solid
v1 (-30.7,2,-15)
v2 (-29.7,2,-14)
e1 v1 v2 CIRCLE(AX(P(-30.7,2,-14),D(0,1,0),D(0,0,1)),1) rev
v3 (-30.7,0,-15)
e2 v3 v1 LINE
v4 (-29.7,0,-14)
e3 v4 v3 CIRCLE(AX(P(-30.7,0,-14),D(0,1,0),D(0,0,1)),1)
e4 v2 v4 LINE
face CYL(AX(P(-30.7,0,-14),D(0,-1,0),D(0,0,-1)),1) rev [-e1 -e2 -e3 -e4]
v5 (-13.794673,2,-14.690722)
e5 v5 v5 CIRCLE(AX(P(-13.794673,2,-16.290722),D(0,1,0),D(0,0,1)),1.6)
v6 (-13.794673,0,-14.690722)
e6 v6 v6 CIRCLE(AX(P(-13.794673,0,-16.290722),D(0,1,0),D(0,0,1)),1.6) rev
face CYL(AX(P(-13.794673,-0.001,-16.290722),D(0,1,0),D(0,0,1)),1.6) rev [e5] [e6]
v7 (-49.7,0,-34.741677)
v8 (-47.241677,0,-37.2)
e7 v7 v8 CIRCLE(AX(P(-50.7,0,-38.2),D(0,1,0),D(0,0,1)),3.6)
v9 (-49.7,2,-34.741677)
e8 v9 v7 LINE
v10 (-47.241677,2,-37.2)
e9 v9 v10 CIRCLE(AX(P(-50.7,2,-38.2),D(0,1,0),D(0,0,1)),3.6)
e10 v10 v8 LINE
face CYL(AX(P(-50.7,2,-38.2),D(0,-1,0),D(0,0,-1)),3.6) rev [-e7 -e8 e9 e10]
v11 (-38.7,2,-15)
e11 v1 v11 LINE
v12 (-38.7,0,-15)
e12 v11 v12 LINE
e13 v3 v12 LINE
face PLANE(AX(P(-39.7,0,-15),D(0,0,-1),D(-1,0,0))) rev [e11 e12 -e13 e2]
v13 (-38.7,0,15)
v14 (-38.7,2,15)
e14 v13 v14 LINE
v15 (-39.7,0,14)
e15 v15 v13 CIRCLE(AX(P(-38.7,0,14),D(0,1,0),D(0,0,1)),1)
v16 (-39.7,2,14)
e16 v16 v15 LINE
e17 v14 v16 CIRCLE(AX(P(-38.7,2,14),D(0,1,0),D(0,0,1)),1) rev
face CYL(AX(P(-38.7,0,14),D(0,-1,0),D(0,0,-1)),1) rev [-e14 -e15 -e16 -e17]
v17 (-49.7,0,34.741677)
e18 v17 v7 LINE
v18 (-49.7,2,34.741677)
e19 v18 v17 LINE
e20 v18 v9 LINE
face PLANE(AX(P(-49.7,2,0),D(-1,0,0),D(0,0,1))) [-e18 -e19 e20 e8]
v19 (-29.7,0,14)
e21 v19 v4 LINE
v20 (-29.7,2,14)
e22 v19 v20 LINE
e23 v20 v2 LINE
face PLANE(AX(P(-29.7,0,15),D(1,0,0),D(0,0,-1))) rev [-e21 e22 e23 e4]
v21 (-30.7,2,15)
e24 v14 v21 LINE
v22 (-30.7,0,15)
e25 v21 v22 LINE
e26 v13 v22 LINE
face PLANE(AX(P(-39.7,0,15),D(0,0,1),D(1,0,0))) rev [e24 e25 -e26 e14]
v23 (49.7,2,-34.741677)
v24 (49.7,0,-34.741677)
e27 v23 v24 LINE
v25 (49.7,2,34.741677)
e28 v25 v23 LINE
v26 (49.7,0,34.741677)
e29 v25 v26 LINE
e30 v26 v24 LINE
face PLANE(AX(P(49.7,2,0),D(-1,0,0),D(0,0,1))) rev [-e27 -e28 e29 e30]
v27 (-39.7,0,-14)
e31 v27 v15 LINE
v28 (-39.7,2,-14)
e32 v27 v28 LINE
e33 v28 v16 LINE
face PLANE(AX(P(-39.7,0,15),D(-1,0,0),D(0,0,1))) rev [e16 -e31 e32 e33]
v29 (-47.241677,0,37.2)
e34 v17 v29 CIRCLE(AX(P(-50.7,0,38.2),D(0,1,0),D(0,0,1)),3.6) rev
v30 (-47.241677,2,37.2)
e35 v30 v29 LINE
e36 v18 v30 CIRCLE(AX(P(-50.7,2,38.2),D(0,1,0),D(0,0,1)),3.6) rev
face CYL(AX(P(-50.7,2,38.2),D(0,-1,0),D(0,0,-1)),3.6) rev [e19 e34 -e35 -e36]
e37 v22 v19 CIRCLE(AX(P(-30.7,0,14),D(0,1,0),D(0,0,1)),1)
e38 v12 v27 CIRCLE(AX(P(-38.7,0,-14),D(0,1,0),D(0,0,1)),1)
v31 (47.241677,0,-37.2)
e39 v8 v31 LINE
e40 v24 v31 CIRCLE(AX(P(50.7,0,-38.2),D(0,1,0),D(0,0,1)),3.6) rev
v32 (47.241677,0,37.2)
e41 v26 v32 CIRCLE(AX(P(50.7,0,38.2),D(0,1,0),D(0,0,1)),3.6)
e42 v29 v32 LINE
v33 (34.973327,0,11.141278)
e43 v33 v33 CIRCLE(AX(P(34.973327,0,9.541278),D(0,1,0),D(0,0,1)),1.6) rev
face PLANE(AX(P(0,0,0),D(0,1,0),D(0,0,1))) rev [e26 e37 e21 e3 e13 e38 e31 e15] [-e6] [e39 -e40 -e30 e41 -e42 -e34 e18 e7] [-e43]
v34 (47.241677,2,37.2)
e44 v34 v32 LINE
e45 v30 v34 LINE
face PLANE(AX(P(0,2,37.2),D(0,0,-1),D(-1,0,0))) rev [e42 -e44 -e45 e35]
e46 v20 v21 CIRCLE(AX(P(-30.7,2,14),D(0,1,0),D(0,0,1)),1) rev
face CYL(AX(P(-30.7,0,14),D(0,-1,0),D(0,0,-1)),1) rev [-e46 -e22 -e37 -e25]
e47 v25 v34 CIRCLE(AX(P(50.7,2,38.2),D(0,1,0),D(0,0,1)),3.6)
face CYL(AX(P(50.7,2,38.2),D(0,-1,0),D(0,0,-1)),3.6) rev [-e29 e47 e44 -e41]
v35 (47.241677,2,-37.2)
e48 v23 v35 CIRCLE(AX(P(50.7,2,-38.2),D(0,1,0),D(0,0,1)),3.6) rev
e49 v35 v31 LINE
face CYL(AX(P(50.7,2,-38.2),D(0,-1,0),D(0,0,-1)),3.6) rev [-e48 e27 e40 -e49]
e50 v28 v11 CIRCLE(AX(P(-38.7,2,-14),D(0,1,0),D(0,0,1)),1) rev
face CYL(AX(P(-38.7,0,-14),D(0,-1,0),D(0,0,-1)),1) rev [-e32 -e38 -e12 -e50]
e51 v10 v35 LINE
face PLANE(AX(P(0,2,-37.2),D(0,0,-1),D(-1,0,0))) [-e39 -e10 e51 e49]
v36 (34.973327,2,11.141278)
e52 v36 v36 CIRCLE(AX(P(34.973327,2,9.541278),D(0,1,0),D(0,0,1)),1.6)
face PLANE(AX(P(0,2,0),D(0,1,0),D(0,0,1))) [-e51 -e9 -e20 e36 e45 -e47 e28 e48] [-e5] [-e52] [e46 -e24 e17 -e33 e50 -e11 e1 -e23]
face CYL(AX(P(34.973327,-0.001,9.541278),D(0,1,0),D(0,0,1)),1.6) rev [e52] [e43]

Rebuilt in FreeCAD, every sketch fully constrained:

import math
import FreeCAD as App
import Part
import Sketcher

V = App.Vector
Q = App.Units.Quantity


def edges_at(feature, points):
    """Names of the edges that pass closest to the given points."""
    edges = feature.Shape.Edges
    near = lambda p: min(range(len(edges)), key=lambda i: edges[i].distToShape(Part.Vertex(*p))[0])
    return sorted({f"Edge{near(p) + 1}" for p in points})

doc = App.newDocument("Part")
body = doc.addObject("PartDesign::Body", "Body")

sketch1 = doc.addObject("Sketcher::SketchObject", "Sketch")
body.addObject(sketch1)
sketch1.AttachmentSupport = (doc.XZ_Plane, [""])
sketch1.MapMode = "FlatFace"
sketch1.addGeometry(Part.ArcOfCircle(Part.Circle(V(-50.7, 38.2, 0), V(0, 0, 1), 3.6), math.radians(-74), math.radians(-16)), False)
sketch1.addGeometry(Part.LineSegment(V(-47.2, 37.2, 0), V(47.2, 37.2, 0)), False)
sketch1.addGeometry(Part.ArcOfCircle(Part.Circle(V(50.7, 38.2, 0), V(0, 0, 1), 3.6), math.radians(-164), math.radians(-106)), False)
sketch1.addGeometry(Part.LineSegment(V(49.7, 34.7, 0), V(49.7, -34.7, 0)), False)
sketch1.addGeometry(Part.ArcOfCircle(Part.Circle(V(50.7, -38.2, 0), V(0, 0, 1), 3.6), math.radians(106), math.radians(164)), False)
sketch1.addGeometry(Part.LineSegment(V(47.2, -37.2, 0), V(-47.2, -37.2, 0)), False)
sketch1.addGeometry(Part.ArcOfCircle(Part.Circle(V(-50.7, -38.2, 0), V(0, 0, 1), 3.6), math.radians(16), math.radians(74)), False)
sketch1.addGeometry(Part.LineSegment(V(-49.7, -34.7, 0), V(-49.7, 34.7, 0)), False)
sketch1.addConstraint(Sketcher.Constraint("Coincident", 0, 2, 1, 1))
sketch1.addConstraint(Sketcher.Constraint("Coincident", 1, 2, 2, 1))
sketch1.addConstraint(Sketcher.Constraint("Coincident", 2, 2, 3, 1))
sketch1.addConstraint(Sketcher.Constraint("Coincident", 3, 2, 4, 1))
sketch1.addConstraint(Sketcher.Constraint("Coincident", 4, 2, 5, 1))
sketch1.addConstraint(Sketcher.Constraint("Coincident", 5, 2, 6, 1))
sketch1.addConstraint(Sketcher.Constraint("Coincident", 6, 2, 7, 1))
sketch1.addConstraint(Sketcher.Constraint("Coincident", 7, 2, 0, 1))
sketch1.addConstraint(Sketcher.Constraint("Horizontal", 1))
sketch1.addConstraint(Sketcher.Constraint("Vertical", 3))
sketch1.addConstraint(Sketcher.Constraint("Horizontal", 5))
sketch1.addConstraint(Sketcher.Constraint("Vertical", 7))
sketch1.addConstraint(Sketcher.Constraint("Equal", 0, 2))
sketch1.addConstraint(Sketcher.Constraint("Equal", 2, 4))
sketch1.addConstraint(Sketcher.Constraint("Equal", 4, 6))
sketch1.addConstraint(Sketcher.Constraint("Symmetric", 0, 3, 4, 3, -1, 1))
sketch1.addConstraint(Sketcher.Constraint("Symmetric", 2, 3, 6, 3, -1, 1))
sketch1.addConstraint(Sketcher.Constraint("Symmetric", 0, 3, 2, 3, -2))
sketch1.addConstraint(Sketcher.Constraint("Horizontal", 3, 2, 6, 2))
sketch1.addConstraint(Sketcher.Constraint("Vertical", 1, 2, 4, 2))
sketch1.addConstraint(Sketcher.Constraint("Radius", 0, Q("3.6 mm")))
sketch1.addConstraint(Sketcher.Constraint("DistanceY", 0, 2, 0, 3, Q("1 mm")))
sketch1.addConstraint(Sketcher.Constraint("DistanceX", 2, 2, 2, 3, Q("1 mm")))
sketch1.addConstraint(Sketcher.Constraint("DistanceX", 0, 3, -1, 1, Q("50.7 mm")))
sketch1.addConstraint(Sketcher.Constraint("DistanceY", -1, 1, 0, 3, Q("38.2 mm")))
pad1 = doc.addObject("PartDesign::Pad", "Pad")
body.addObject(pad1)
pad1.Profile = sketch1
pad1.Length = 2
pad1.Reversed = True

sketch2 = doc.addObject("Sketcher::SketchObject", "Sketch001")
body.addObject(sketch2)
sketch2.AttachmentSupport = (doc.XZ_Plane, [""])
sketch2.MapMode = "FlatFace"
sketch2.AttachmentOffset = App.Placement(V(0, 0, -2), App.Rotation())
sketch2.addGeometry(Part.LineSegment(V(-40, -15, 0), V(-40, 15, 0)), False)
sketch2.addGeometry(Part.LineSegment(V(-40, 15, 0), V(-30, 15, 0)), False)
sketch2.addGeometry(Part.LineSegment(V(-30, 15, 0), V(-30, -15, 0)), False)
sketch2.addGeometry(Part.LineSegment(V(-30, -15, 0), V(-40, -15, 0)), False)
sketch2.addConstraint(Sketcher.Constraint("Coincident", 0, 2, 1, 1))
sketch2.addConstraint(Sketcher.Constraint("Coincident", 1, 2, 2, 1))
sketch2.addConstraint(Sketcher.Constraint("Coincident", 2, 2, 3, 1))
sketch2.addConstraint(Sketcher.Constraint("Coincident", 3, 2, 0, 1))
sketch2.addConstraint(Sketcher.Constraint("Vertical", 0))
sketch2.addConstraint(Sketcher.Constraint("Horizontal", 1))
sketch2.addConstraint(Sketcher.Constraint("Vertical", 2))
sketch2.addConstraint(Sketcher.Constraint("Horizontal", 3))
sketch2.addConstraint(Sketcher.Constraint("DistanceX", 1, 1, 1, 2, Q("10 mm")))
sketch2.addConstraint(Sketcher.Constraint("DistanceY", 0, 1, 0, 2, Q("30 mm")))
sketch2.addConstraint(Sketcher.Constraint("DistanceY", -1, 1, 0, 2, Q("15 mm")))
sketch2.addConstraint(Sketcher.Constraint("DistanceX", 0, 2, -1, 1, Q("39.7 mm")))
pocket1 = doc.addObject("PartDesign::Pocket", "Pocket")
body.addObject(pocket1)
pocket1.Profile = sketch2
pocket1.Type = "ThroughAll"
pocket1.Reversed = True
doc.recompute()

fillet = doc.addObject("PartDesign::Fillet", "Fillet")
body.addObject(fillet)
fillet.Base = (pocket1, edges_at(pocket1, [
    (-29.7, 1, -15),
    (-29.7, 1, 15),
    (-39.7, 1, 15),
    (-39.7, 1, -15),
]))
fillet.Radius = 1

sketch3 = doc.addObject("Sketcher::SketchObject", "Sketch002")
body.addObject(sketch3)
sketch3.AttachmentSupport = (doc.XZ_Plane, [""])
sketch3.MapMode = "FlatFace"
sketch3.AttachmentOffset = App.Placement(V(0, 0, -2), App.Rotation())
sketch3.addGeometry(Part.Circle(V(-13.8, -16.3, 0), V(0, 0, 1), 1.6), False)
sketch3.addConstraint(Sketcher.Constraint("Diameter", 0, Q("3.2 mm")))
sketch3.addConstraint(Sketcher.Constraint("DistanceY", 0, 3, -1, 1, Q("16.290722 mm")))
sketch3.addConstraint(Sketcher.Constraint("DistanceX", 0, 3, -1, 1, Q("13.794673 mm")))
pocket2 = doc.addObject("PartDesign::Pocket", "Pocket001")
body.addObject(pocket2)
pocket2.Profile = sketch3
pocket2.Type = "UpToFirst"
pocket2.Reversed = True

sketch4 = doc.addObject("Sketcher::SketchObject", "Sketch003")
body.addObject(sketch4)
sketch4.AttachmentSupport = (doc.XZ_Plane, [""])
sketch4.MapMode = "FlatFace"
sketch4.AttachmentOffset = App.Placement(V(0, 0, -2), App.Rotation())
sketch4.addGeometry(Part.Circle(V(35, 9.5, 0), V(0, 0, 1), 1.6), False)
sketch4.addConstraint(Sketcher.Constraint("Diameter", 0, Q("3.2 mm")))
sketch4.addConstraint(Sketcher.Constraint("DistanceY", -1, 1, 0, 3, Q("9.541278 mm")))
sketch4.addConstraint(Sketcher.Constraint("DistanceX", -1, 1, 0, 3, Q("34.973327 mm")))
pocket3 = doc.addObject("PartDesign::Pocket", "Pocket002")
body.addObject(pocket3)
pocket3.Profile = sketch4
pocket3.Type = "UpToFirst"
pocket3.Reversed = True

doc.recompute()
